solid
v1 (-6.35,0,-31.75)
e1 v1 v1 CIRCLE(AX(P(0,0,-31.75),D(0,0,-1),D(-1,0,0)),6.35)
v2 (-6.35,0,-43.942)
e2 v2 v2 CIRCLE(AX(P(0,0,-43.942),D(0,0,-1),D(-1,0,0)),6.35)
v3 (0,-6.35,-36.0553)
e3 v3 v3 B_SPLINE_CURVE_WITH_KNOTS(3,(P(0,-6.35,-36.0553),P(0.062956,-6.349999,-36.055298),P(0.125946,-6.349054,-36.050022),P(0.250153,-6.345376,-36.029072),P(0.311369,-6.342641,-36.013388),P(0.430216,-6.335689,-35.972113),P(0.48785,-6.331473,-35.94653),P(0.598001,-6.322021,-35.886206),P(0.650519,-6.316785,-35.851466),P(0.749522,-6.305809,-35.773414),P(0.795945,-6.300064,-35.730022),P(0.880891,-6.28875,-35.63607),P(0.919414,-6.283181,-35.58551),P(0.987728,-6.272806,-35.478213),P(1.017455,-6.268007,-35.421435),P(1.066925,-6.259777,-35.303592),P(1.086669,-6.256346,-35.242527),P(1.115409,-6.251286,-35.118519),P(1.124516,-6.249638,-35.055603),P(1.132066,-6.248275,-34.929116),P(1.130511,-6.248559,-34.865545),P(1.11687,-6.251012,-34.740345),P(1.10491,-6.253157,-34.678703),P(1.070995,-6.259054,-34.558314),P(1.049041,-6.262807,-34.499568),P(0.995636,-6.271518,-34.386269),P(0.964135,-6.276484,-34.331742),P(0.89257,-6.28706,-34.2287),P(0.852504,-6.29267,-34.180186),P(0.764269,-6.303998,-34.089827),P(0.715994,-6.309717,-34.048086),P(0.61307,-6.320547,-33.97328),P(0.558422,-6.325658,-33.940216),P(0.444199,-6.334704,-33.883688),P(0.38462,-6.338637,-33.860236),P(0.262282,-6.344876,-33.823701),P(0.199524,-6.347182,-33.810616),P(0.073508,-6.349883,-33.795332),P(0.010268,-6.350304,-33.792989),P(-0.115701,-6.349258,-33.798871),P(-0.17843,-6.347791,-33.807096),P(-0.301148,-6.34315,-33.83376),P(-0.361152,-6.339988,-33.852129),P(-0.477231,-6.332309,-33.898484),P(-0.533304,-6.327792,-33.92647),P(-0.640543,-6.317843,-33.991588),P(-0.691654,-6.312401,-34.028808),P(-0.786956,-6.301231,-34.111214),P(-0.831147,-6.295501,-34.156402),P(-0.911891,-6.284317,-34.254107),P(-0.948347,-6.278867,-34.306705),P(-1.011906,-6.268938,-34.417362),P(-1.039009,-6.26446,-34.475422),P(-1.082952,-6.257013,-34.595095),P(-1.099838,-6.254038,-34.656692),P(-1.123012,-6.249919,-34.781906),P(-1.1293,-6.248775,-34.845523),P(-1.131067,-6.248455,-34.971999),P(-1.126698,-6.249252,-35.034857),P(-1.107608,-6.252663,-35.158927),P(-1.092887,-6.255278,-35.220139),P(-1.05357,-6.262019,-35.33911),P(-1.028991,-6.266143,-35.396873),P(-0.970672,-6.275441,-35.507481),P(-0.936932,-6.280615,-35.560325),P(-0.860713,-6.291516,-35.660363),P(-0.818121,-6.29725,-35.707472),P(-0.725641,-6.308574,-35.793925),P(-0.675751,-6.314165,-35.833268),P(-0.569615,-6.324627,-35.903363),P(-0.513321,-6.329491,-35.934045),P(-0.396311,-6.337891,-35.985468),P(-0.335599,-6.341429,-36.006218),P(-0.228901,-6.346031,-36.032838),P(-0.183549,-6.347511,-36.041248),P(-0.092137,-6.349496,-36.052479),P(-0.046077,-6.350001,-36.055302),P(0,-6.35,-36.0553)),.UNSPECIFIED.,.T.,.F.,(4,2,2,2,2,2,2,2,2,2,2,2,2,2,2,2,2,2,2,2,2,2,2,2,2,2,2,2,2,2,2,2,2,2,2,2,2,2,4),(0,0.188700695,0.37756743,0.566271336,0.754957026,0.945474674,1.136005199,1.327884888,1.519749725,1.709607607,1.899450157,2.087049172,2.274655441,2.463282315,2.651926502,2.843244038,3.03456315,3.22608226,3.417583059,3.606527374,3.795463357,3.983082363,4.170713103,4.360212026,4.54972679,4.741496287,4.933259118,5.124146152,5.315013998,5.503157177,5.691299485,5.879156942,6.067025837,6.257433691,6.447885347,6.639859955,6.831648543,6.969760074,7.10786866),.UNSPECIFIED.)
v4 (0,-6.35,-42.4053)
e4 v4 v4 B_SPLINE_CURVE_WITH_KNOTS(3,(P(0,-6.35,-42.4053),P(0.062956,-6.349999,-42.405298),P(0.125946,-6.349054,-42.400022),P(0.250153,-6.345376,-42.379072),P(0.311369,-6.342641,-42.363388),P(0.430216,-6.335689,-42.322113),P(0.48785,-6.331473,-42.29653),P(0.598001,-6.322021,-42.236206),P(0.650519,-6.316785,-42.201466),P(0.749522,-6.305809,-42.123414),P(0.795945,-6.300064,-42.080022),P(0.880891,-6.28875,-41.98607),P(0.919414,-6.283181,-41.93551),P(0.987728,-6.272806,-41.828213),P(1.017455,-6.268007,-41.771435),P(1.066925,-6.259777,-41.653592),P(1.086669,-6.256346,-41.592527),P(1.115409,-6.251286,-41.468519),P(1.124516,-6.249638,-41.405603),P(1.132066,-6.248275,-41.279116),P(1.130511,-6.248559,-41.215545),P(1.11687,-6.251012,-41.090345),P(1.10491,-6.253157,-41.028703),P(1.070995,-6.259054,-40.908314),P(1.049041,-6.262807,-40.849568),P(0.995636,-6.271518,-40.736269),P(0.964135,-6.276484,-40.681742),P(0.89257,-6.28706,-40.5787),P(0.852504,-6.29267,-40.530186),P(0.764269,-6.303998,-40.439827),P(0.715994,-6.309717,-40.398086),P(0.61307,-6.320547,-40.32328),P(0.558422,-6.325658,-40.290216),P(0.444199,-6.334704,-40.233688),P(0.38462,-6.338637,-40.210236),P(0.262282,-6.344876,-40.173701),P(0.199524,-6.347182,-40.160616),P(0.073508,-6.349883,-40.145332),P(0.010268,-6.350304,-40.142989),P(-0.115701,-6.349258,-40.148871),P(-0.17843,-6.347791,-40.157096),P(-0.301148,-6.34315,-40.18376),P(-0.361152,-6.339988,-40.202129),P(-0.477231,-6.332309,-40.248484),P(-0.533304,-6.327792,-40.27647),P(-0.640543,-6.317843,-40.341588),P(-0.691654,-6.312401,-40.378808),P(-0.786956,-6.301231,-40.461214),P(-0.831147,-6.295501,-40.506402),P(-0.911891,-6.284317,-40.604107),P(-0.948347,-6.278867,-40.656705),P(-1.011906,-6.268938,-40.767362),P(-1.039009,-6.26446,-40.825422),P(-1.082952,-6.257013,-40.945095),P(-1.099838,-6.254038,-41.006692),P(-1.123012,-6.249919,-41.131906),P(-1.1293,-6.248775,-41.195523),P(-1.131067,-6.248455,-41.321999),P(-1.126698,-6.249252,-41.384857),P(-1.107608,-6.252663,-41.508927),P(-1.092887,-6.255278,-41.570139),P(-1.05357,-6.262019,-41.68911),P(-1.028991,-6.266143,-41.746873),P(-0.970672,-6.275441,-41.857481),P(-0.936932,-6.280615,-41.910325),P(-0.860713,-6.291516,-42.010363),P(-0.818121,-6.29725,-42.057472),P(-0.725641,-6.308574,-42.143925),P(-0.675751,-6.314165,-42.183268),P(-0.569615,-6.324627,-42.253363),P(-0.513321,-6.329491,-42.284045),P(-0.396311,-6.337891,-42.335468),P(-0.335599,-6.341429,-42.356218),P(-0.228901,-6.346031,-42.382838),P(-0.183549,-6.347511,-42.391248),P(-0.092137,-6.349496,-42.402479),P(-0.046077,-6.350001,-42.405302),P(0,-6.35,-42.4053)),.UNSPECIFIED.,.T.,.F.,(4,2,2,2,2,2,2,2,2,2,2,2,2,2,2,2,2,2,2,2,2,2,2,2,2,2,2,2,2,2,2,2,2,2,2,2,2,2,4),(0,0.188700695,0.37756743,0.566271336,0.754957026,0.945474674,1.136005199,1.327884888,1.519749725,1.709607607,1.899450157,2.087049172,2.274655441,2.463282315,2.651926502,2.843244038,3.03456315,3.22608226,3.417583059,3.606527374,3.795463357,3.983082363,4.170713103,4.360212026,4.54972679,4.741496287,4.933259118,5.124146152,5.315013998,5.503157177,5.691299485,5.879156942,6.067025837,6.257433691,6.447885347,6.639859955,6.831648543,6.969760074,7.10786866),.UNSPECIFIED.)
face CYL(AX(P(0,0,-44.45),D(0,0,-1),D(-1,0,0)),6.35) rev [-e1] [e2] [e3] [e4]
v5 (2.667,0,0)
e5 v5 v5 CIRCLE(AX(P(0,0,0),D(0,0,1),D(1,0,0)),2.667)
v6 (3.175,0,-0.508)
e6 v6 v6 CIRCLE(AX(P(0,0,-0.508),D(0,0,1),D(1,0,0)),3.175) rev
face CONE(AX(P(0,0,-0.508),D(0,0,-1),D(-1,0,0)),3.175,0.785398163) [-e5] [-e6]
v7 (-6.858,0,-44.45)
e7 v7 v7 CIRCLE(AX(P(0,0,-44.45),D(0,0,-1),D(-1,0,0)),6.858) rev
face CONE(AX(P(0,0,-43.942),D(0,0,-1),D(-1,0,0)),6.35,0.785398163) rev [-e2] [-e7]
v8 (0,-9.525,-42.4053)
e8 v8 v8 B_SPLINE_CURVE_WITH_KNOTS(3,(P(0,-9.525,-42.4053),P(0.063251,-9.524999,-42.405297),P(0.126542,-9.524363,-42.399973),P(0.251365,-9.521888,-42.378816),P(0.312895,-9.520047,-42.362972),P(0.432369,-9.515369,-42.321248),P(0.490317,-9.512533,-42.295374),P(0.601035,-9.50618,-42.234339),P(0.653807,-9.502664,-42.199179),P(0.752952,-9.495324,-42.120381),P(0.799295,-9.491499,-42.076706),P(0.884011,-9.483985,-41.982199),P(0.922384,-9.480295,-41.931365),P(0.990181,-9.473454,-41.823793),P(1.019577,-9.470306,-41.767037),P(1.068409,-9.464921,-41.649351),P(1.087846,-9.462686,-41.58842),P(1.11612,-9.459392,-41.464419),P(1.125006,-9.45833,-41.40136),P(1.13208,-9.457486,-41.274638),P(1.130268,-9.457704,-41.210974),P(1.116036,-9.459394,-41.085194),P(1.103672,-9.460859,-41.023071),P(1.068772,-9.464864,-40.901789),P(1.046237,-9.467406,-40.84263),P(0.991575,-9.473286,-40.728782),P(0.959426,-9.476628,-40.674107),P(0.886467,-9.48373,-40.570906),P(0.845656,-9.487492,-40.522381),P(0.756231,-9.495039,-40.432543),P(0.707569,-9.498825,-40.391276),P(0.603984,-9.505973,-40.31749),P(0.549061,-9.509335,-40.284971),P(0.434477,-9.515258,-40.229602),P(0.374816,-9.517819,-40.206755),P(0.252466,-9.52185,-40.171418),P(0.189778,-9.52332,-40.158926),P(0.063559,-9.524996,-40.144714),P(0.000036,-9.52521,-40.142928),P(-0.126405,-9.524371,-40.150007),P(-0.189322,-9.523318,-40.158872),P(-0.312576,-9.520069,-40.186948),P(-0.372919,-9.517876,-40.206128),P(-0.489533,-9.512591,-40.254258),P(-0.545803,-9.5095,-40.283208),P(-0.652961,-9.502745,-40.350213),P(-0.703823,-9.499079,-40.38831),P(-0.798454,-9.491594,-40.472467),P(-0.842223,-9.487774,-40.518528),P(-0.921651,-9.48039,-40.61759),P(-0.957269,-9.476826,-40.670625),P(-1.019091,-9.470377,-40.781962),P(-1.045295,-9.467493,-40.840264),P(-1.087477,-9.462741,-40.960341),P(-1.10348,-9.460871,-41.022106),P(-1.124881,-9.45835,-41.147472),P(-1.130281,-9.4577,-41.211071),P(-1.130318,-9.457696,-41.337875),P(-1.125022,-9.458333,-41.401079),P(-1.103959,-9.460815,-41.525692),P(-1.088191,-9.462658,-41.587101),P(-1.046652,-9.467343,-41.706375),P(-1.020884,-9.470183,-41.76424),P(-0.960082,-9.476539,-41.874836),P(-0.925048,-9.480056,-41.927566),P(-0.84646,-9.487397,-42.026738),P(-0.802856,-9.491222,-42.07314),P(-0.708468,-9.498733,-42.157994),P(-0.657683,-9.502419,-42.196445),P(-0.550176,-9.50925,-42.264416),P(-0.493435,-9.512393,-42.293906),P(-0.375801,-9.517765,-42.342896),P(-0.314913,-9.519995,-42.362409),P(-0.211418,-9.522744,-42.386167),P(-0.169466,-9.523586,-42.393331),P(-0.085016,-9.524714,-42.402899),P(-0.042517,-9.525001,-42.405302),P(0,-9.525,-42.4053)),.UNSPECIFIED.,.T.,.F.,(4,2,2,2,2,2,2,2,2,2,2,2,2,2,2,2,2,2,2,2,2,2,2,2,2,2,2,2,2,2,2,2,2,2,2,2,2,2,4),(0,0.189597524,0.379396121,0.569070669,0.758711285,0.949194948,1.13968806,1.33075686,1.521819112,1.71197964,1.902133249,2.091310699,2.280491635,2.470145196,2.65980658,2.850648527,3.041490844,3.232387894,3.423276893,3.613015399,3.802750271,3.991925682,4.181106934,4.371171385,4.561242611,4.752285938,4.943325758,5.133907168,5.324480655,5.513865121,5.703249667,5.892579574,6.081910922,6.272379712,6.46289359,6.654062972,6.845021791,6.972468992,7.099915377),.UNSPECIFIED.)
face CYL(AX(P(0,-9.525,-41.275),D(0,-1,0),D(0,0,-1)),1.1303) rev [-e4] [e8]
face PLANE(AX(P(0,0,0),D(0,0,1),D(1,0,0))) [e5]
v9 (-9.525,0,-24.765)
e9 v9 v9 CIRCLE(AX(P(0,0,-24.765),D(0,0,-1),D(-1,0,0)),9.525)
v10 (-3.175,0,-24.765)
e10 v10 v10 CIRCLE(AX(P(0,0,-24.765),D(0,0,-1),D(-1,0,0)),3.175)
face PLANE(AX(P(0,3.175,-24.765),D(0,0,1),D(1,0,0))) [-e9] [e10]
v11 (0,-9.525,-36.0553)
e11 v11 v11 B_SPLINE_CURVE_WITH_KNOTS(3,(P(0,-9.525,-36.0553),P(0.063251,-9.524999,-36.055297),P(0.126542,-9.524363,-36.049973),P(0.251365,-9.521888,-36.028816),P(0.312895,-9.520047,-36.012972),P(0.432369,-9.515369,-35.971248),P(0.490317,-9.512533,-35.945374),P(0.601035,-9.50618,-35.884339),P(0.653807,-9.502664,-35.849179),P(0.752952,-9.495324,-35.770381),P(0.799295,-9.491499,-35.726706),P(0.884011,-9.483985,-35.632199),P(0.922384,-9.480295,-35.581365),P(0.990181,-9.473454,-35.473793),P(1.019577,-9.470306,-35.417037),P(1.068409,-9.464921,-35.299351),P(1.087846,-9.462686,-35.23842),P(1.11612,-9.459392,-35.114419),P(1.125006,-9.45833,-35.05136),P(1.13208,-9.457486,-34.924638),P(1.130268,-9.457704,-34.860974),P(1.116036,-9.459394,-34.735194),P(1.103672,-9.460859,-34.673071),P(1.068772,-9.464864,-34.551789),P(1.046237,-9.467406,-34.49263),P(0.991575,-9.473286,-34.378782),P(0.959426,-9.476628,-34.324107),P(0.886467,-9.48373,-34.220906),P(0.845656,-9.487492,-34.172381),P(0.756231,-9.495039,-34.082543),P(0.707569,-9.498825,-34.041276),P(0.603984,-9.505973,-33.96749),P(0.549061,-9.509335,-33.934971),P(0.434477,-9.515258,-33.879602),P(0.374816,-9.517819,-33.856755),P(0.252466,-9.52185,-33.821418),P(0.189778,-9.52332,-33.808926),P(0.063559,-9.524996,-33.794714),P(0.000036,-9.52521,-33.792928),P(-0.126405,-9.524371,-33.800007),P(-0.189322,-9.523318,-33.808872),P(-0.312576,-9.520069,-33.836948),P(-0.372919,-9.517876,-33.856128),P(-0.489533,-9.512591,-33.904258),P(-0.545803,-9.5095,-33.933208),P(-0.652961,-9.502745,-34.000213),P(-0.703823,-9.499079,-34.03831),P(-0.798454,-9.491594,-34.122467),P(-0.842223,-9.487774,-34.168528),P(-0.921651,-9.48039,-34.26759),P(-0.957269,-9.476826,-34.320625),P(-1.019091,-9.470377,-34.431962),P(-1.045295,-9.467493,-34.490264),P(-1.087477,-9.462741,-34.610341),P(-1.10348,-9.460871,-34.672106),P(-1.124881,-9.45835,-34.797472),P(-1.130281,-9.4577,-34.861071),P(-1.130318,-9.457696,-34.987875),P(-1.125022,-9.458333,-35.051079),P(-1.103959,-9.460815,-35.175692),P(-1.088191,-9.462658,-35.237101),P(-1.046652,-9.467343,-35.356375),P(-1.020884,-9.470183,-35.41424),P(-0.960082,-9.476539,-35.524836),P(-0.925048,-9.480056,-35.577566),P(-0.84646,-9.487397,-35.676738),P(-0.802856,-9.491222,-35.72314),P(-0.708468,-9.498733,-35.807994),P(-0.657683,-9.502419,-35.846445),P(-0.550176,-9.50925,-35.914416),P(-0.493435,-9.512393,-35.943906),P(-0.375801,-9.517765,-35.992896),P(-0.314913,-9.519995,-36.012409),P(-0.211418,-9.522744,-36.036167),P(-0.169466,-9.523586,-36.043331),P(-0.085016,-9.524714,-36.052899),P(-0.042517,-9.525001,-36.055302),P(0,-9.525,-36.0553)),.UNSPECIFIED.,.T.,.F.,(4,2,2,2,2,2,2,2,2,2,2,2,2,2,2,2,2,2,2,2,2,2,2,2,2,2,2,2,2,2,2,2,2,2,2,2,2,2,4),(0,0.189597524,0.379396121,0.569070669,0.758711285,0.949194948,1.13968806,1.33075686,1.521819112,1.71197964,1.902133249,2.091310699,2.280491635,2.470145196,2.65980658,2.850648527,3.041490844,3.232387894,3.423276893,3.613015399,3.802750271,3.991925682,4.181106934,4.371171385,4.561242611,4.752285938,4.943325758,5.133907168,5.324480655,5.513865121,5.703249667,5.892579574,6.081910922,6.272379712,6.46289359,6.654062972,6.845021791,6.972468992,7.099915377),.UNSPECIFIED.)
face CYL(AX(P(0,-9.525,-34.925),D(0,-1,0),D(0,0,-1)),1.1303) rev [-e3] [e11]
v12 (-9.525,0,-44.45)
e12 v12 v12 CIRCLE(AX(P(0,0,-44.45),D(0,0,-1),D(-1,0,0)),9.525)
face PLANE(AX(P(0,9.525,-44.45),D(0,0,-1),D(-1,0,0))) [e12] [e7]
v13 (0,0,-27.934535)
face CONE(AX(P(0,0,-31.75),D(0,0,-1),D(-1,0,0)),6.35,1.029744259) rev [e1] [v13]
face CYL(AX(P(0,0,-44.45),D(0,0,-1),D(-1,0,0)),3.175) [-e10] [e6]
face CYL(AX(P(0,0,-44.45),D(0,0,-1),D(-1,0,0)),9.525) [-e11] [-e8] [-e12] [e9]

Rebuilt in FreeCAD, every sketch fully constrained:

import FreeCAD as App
import Part
import Sketcher
Q = App.Units.Quantity


def edges_at(feature, points):
    """Names of the edges that pass closest to the given points."""
    edges = feature.Shape.Edges
    near = lambda p: min(range(len(edges)), key=lambda i: edges[i].distToShape(Part.Vertex(*p))[0])
    return sorted({f"Edge{near(p) + 1}" for p in points})

doc = App.newDocument("Part")
body = doc.addObject("PartDesign::Body", "Body")

# Sketch on YZ plane
sketch1 = body.newObject("Sketcher::SketchObject", "Sketch")
sketch1.AttachmentSupport = (doc.getObject("YZ_Plane"), [""])
sketch1.MapMode = "FlatFace"
sketch1.addGeometry([
    Part.LineSegment(App.Vector(3.2, 0, 0), App.Vector(0, 0, 0)),  # 0
    Part.LineSegment(App.Vector(0, 0, 0), App.Vector(0, -44.5, 0)),  # 1
    Part.LineSegment(App.Vector(0, -44.5, 0), App.Vector(9.5, -44.5, 0)),  # 2
    Part.LineSegment(App.Vector(9.5, -44.5, 0), App.Vector(9.5, -24.8, 0)),  # 3
    Part.LineSegment(App.Vector(9.5, -24.8, 0), App.Vector(3.2, -24.8, 0)),  # 4
    Part.LineSegment(App.Vector(3.2, -24.8, 0), App.Vector(3.2, 0, 0)),  # 5
], False)
sketch1.addConstraint([
    Sketcher.Constraint("Coincident", 0, 2, 1, 1),
    Sketcher.Constraint("Coincident", 1, 2, 2, 1),
    Sketcher.Constraint("Coincident", 2, 2, 3, 1),
    Sketcher.Constraint("Coincident", 3, 2, 4, 1),
    Sketcher.Constraint("Coincident", 4, 2, 5, 1),
    Sketcher.Constraint("Coincident", 5, 2, 0, 1),
    Sketcher.Constraint("Horizontal", 0),
    Sketcher.Constraint("Vertical", 1),
    Sketcher.Constraint("Horizontal", 2),
    Sketcher.Constraint("Vertical", 3),
    Sketcher.Constraint("Horizontal", 4),
    Sketcher.Constraint("Vertical", 5),
    Sketcher.Constraint("Coincident", 0, 2, -1, 1),
    Sketcher.Constraint("DistanceX", 4, 2, 4, 1, Q("0.25 in")),
    Sketcher.Constraint("DistanceY", 1, 2, 1, 1, Q("1.75 in")),
    Sketcher.Constraint("DistanceX", 0, 2, 0, 1, Q("0.125 in")),
    Sketcher.Constraint("DistanceY", 3, 1, 3, 2, Q("0.775 in")),
])
revolution = body.newObject("PartDesign::Revolution", "Revolution")
revolution.Profile = sketch1
revolution.ReferenceAxis = (sketch1, ["V_Axis"])
revolution.Angle = 360

# Sketch on XY plane
sketch2 = body.newObject("Sketcher::SketchObject", "Sketch001")
sketch2.AttachmentSupport = (doc.getObject("XY_Plane"), [""])
sketch2.MapMode = "FlatFace"
sketch2.AttachmentOffset = App.Placement(App.Vector(0, 0, -1.75 * 25.4), App.Rotation())
sketch2.addGeometry(Part.Circle(App.Vector(0, 0, 0), App.Vector(0, 0, 1), 6), False)
sketch2.addConstraint([
    Sketcher.Constraint("Coincident", 0, 3, -1, 1),
    Sketcher.Constraint("Diameter", 0, Q("0.5 in")),
])
doc.recompute()
hole = body.newObject("PartDesign::Hole", "Hole")
hole.Profile = sketch2
hole.ThreadType = "None"
hole.Diameter = Q("0.5 in")
hole.DepthType = "Dimension"
hole.Depth = Q("0.5 in")
hole.DrillPoint = "Angled"
hole.DrillPointAngle = 118
hole.Reversed = True

# Sketch on XZ plane
sketch3 = body.newObject("Sketcher::SketchObject", "Sketch002")
sketch3.AttachmentSupport = (doc.getObject("XZ_Plane"), [""])
sketch3.MapMode = "FlatFace"
sketch3.AttachmentOffset = App.Placement(App.Vector(0, 0, 0.375 * 25.4), App.Rotation())
sketch3.addGeometry(Part.Circle(App.Vector(0, -34.9, 0), App.Vector(0, 0, 1), 1.1), False)
sketch3.addConstraint([
    Sketcher.Constraint("PointOnObject", 0, 3, -2),
    Sketcher.Constraint("Diameter", 0, Q("0.089 in")),
    Sketcher.Constraint("DistanceY", 0, 3, -1, 1, Q("1.375 in")),
])
pocket1 = body.newObject("PartDesign::Pocket", "Pocket")
pocket1.Profile = sketch3
pocket1.Length = 3.276406

# Sketch on XZ plane
sketch4 = body.newObject("Sketcher::SketchObject", "Sketch003")
sketch4.AttachmentSupport = (doc.getObject("XZ_Plane"), [""])
sketch4.MapMode = "FlatFace"
sketch4.AttachmentOffset = App.Placement(App.Vector(0, 0, 0.375 * 25.4), App.Rotation())
sketch4.addGeometry(Part.Circle(App.Vector(0, -41.3, 0), App.Vector(0, 0, 1), 1.1), False)
sketch4.addConstraint([
    Sketcher.Constraint("PointOnObject", 0, 3, -2),
    Sketcher.Constraint("Diameter", 0, Q("0.089 in")),
    Sketcher.Constraint("DistanceY", 0, 3, -1, 1, Q("1.625 in")),
])
pocket2 = body.newObject("PartDesign::Pocket", "Pocket001")
pocket2.Profile = sketch4
pocket2.Length = 3.276406
doc.recompute()

chamfer = body.newObject("PartDesign::Chamfer", "Chamfer")
chamfer.Base = (pocket2, edges_at(pocket2, [(-6.35, 0, -44.45), (3.175, 0, 0)]))
chamfer.Size = Q("0.02 in")

doc.recompute()
